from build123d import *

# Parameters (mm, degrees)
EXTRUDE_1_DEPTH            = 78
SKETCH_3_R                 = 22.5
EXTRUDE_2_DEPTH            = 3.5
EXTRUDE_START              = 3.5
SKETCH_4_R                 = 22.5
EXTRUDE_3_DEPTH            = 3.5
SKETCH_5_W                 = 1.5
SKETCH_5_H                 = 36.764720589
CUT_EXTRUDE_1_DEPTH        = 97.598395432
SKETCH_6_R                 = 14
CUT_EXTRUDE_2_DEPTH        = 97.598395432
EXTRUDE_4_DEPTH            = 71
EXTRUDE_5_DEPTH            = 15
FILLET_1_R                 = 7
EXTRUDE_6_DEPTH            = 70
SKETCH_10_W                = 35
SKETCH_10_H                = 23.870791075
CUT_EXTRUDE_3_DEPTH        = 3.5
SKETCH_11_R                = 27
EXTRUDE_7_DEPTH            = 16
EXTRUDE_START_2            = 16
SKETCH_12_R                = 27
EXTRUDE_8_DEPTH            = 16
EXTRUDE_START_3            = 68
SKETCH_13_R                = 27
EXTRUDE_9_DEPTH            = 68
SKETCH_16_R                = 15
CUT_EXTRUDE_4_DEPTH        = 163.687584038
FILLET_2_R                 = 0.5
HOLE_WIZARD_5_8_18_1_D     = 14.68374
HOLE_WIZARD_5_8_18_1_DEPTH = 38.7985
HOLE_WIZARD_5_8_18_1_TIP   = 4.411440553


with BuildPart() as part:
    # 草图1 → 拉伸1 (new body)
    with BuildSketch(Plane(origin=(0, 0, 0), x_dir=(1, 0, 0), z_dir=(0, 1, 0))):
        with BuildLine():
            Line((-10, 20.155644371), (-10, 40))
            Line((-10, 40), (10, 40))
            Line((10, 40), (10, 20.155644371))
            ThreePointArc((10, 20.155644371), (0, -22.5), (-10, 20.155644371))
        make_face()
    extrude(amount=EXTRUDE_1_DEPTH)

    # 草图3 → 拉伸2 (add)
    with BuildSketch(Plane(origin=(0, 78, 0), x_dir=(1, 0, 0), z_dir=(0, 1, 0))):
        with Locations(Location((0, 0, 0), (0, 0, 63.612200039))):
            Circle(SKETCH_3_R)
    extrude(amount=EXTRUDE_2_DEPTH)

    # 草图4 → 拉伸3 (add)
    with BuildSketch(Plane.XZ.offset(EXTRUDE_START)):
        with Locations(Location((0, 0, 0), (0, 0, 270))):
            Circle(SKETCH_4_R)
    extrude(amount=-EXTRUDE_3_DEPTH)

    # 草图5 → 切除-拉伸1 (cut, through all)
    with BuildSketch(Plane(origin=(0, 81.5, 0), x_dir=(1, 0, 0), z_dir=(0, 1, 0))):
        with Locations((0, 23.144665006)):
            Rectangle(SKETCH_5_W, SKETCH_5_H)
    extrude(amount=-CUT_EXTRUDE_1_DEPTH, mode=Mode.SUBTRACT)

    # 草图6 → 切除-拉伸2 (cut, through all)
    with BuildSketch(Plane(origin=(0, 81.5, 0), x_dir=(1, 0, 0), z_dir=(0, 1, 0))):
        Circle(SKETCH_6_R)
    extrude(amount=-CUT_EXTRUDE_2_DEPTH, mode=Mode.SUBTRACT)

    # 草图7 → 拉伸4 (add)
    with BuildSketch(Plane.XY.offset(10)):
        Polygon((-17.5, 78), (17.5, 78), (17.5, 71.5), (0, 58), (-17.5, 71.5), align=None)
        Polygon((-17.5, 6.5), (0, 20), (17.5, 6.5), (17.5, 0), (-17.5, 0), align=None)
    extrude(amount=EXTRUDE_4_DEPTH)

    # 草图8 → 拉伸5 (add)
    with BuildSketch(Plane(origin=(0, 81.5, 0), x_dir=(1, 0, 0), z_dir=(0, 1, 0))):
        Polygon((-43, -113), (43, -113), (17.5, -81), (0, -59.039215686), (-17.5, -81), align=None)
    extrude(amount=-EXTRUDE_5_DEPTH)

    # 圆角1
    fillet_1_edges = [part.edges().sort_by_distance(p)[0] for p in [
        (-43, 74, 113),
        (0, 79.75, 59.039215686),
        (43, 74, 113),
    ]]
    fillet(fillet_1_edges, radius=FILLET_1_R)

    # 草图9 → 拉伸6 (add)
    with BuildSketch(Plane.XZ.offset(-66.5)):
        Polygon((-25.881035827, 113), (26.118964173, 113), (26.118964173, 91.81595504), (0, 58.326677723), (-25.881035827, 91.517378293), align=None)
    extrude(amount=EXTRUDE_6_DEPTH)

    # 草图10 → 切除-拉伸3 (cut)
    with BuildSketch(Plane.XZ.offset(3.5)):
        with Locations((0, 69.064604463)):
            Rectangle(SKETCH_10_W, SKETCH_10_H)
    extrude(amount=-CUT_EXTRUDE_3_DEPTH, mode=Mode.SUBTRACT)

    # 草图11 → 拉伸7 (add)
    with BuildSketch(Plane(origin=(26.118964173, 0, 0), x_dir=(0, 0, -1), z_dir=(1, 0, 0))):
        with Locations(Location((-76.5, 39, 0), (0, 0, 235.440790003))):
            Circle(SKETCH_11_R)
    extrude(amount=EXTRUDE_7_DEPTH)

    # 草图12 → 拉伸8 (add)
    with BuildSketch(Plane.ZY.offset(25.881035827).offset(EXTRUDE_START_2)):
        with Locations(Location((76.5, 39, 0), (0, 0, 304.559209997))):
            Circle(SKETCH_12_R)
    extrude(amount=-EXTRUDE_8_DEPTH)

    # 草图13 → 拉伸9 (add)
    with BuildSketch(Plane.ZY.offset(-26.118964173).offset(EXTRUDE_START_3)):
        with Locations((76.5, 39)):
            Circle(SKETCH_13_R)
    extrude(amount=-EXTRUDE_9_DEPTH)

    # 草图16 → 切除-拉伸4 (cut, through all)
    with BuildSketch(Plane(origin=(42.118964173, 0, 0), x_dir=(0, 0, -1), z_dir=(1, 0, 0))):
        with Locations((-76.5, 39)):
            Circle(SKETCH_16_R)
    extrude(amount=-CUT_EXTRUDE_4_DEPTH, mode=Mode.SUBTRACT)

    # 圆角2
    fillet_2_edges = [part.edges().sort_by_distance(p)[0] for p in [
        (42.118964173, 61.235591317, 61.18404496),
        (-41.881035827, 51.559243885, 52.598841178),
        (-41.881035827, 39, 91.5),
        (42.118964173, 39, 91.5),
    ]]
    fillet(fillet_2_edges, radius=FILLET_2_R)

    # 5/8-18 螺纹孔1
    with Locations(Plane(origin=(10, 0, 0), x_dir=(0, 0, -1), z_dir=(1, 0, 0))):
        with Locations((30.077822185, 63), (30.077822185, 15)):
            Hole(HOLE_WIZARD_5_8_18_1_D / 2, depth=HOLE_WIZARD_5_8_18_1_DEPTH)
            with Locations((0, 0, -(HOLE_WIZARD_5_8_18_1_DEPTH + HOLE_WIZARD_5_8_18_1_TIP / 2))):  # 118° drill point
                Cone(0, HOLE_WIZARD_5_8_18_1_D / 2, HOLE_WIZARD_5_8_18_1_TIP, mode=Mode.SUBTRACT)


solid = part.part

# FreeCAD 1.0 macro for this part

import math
import FreeCAD as App
import Part
import Sketcher
from FreeCAD import Vector
Q = App.Units.Quantity


def edges_at(feature, points):
    """Names of the edges that pass closest to the given points."""
    edges = feature.Shape.Edges
    near = lambda p: min(range(len(edges)), key=lambda i: edges[i].distToShape(Part.Vertex(*p))[0])
    return sorted({f"Edge{near(p) + 1}" for p in points})

doc = App.newDocument("Part")
params = doc.addObject("Spreadsheet::Sheet", "Params")
for row, (alias, value) in enumerate([
    ("sketch1_radius", "22.5 mm"),
    ("sketch1_width", "20 mm"),
    ("pad1_length", "78 mm"),
    ("sketch2_diameter", "45 mm"),
    ("pad2_length", "3.5 mm"),
    ("sketch3_diameter", "45 mm"),
    ("pad3_length", "3.5 mm"),
    ("sketch4_width", "1.5 mm"),
    ("sketch5_diameter", "28 mm"),
    ("sketch6_width", "35 mm"),
    ("sketch6_height", "6.5 mm"),
    ("pad4_length", "71 mm"),
    ("sketch7_width", "86 mm"),
    ("pad5_length", "15 mm"),
    ("fillet_radius", "7 mm"),
    ("sketch8_width", "52 mm"),
    ("pad6_length", "70 mm"),
    ("sketch9_width", "35 mm"),
    ("pocket3_length", "3.5 mm"),
    ("sketch10_diameter", "54 mm"),
    ("pad7_length", "16 mm"),
    ("sketch11_diameter", "54 mm"),
    ("pad8_length", "16 mm"),
    ("sketch12_diameter", "54 mm"),
    ("pad9_length", "68 mm"),
    ("sketch13_diameter", "30 mm"),
    ("fillet2_radius", "0.5 mm"),
    ("hole_diameter", "14.68374 mm"),
    ("hole_depth", "38.7985 mm"),
], start=1):
    params.set(f"A{row}", alias)
    params.set(f"B{row}", "=" + value)
    params.setAlias(f"B{row}", alias)

body = doc.addObject("PartDesign::Body", "Body")

# Sketch on XZ plane
sketch1 = doc.addObject("Sketcher::SketchObject", "Sketch")
body.addObject(sketch1)
sketch1.AttachmentSupport = (doc.XZ_Plane, [""])
sketch1.MapMode = "FlatFace"
sketch1.addGeometry([
    Part.LineSegment(Vector(-10, -40, 0), Vector(-10, -20, 0)),
    Part.ArcOfCircle(Part.Circle(Vector(0, 0, 0), Vector(0, 0, 1), 22), math.radians(-64), math.radians(244)),
    Part.LineSegment(Vector(10, -20, 0), Vector(10, -40, 0)),
    Part.LineSegment(Vector(10, -40, 0), Vector(-10, -40, 0)),
], False)
sketch1.addConstraint([
    Sketcher.Constraint("Coincident", 0, 2, 1, 2),
    Sketcher.Constraint("Coincident", 1, 1, 2, 1),
    Sketcher.Constraint("Coincident", 2, 2, 3, 1),
    Sketcher.Constraint("Coincident", 3, 2, 0, 1),
    Sketcher.Constraint("Vertical", 0),
    Sketcher.Constraint("Vertical", 2),
    Sketcher.Constraint("Horizontal", 3),
    Sketcher.Constraint("Coincident", 1, 3, -1, 1),
    Sketcher.Constraint("Horizontal", 0, 2, 1, 1),
    Sketcher.Constraint("Radius", 1, Q("22.5 mm")),
    Sketcher.Constraint("DistanceX", 3, 2, 3, 1, Q("20 mm")),
    Sketcher.Constraint("DistanceY", 2, 2, -1, 1, Q("40 mm")),
])
sketch1.setExpression("Constraints[9]", "Params.sketch1_radius")
sketch1.setExpression("Constraints[10]", "Params.sketch1_width")
pad1 = doc.addObject("PartDesign::Pad", "Pad")
body.addObject(pad1)
pad1.Profile = sketch1
pad1.setExpression("Length", "Params.pad1_length")
pad1.Reversed = True

# Sketch on XZ plane
sketch2 = doc.addObject("Sketcher::SketchObject", "Sketch001")
body.addObject(sketch2)
sketch2.AttachmentSupport = (doc.XZ_Plane, [""])
sketch2.MapMode = "FlatFace"
sketch2.AttachmentOffset = App.Placement(Vector(0, 0, -78), App.Rotation())
sketch2.addGeometry(Part.Circle(Vector(0, 0, 0), Vector(0, 0, 1), 22), False)
sketch2.addConstraint([
    Sketcher.Constraint("Coincident", 0, 3, -1, 1),
    Sketcher.Constraint("Diameter", 0, Q("45 mm")),
])
sketch2.setExpression("Constraints[1]", "Params.sketch2_diameter")
pad2 = doc.addObject("PartDesign::Pad", "Pad001")
body.addObject(pad2)
pad2.Profile = sketch2
pad2.setExpression("Length", "Params.pad2_length")
pad2.Reversed = True

# Sketch on XZ plane
sketch3 = doc.addObject("Sketcher::SketchObject", "Sketch002")
body.addObject(sketch3)
sketch3.AttachmentSupport = (doc.XZ_Plane, [""])
sketch3.MapMode = "FlatFace"
sketch3.AttachmentOffset = App.Placement(Vector(0, 0, 3.5), App.Rotation())
sketch3.addGeometry(Part.Circle(Vector(0, 0, 0), Vector(0, 0, 1), 22), False)
sketch3.addConstraint([
    Sketcher.Constraint("Coincident", 0, 3, -1, 1),
    Sketcher.Constraint("Diameter", 0, Q("45 mm")),
])
sketch3.setExpression("Constraints[1]", "Params.sketch3_diameter")
pad3 = doc.addObject("PartDesign::Pad", "Pad002")
body.addObject(pad3)
pad3.Profile = sketch3
pad3.setExpression("Length", "Params.pad3_length")
pad3.Reversed = True

# Sketch on XZ plane
sketch4 = doc.addObject("Sketcher::SketchObject", "Sketch003")
body.addObject(sketch4)
sketch4.AttachmentSupport = (doc.XZ_Plane, [""])
sketch4.MapMode = "FlatFace"
sketch4.AttachmentOffset = App.Placement(Vector(0, 0, -81.5), App.Rotation())
sketch4.addGeometry([
    Part.LineSegment(Vector(-0.8, -41.5, 0), Vector(-0.8, -4.8, 0)),
    Part.LineSegment(Vector(-0.8, -4.8, 0), Vector(0.8, -4.8, 0)),
    Part.LineSegment(Vector(0.8, -4.8, 0), Vector(0.8, -41.5, 0)),
    Part.LineSegment(Vector(0.8, -41.5, 0), Vector(-0.8, -41.5, 0)),
], False)
sketch4.addConstraint([
    Sketcher.Constraint("Coincident", 0, 2, 1, 1),
    Sketcher.Constraint("Coincident", 1, 2, 2, 1),
    Sketcher.Constraint("Coincident", 2, 2, 3, 1),
    Sketcher.Constraint("Coincident", 3, 2, 0, 1),
    Sketcher.Constraint("Vertical", 0),
    Sketcher.Constraint("Horizontal", 1),
    Sketcher.Constraint("Vertical", 2),
    Sketcher.Constraint("Horizontal", 3),
    Sketcher.Constraint("DistanceX", 1, 1, 1, 2, Q("1.5 mm")),
    Sketcher.Constraint("DistanceX", 0, 2, -1, 1, Q("0.75 mm")),
    Sketcher.Constraint("DistanceY", 0, 1, 0, 2, Q("36.764721 mm")),
    Sketcher.Constraint("DistanceY", 0, 2, -1, 1, Q("4.762305 mm")),
])
sketch4.setExpression("Constraints[8]", "Params.sketch4_width")
pocket1 = doc.addObject("PartDesign::Pocket", "Pocket")
body.addObject(pocket1)
pocket1.Profile = sketch4
pocket1.Type = "ThroughAll"
pocket1.Reversed = True

# Sketch on XZ plane
sketch5 = doc.addObject("Sketcher::SketchObject", "Sketch004")
body.addObject(sketch5)
sketch5.AttachmentSupport = (doc.XZ_Plane, [""])
sketch5.MapMode = "FlatFace"
sketch5.AttachmentOffset = App.Placement(Vector(0, 0, -81.5), App.Rotation())
sketch5.addGeometry(Part.Circle(Vector(0, 0, 0), Vector(0, 0, 1), 14), False)
sketch5.addConstraint([
    Sketcher.Constraint("Coincident", 0, 3, -1, 1),
    Sketcher.Constraint("Diameter", 0, Q("28 mm")),
])
sketch5.setExpression("Constraints[1]", "Params.sketch5_diameter")
pocket2 = doc.addObject("PartDesign::Pocket", "Pocket001")
body.addObject(pocket2)
pocket2.Profile = sketch5
pocket2.Type = "ThroughAll"
pocket2.Reversed = True

# Sketch on XY plane
sketch6 = doc.addObject("Sketcher::SketchObject", "Sketch005")
body.addObject(sketch6)
sketch6.AttachmentSupport = (doc.XY_Plane, [""])
sketch6.MapMode = "FlatFace"
sketch6.AttachmentOffset = App.Placement(Vector(0, 0, 10), App.Rotation())
sketch6.addGeometry([
    Part.LineSegment(Vector(18, 78, 0), Vector(-18, 78, 0)),  # 0
    Part.LineSegment(Vector(-18, 78, 0), Vector(-18, 72, 0)),  # 1
    Part.LineSegment(Vector(-18, 72, 0), Vector(0, 58, 0)),  # 2
    Part.LineSegment(Vector(0, 58, 0), Vector(18, 72, 0)),  # 3
    Part.LineSegment(Vector(18, 72, 0), Vector(18, 78, 0)),  # 4
    Part.LineSegment(Vector(0, 20, 0), Vector(-18, 6, 0)),  # 5
    Part.LineSegment(Vector(-18, 6, 0), Vector(-18, 0, 0)),  # 6
    Part.LineSegment(Vector(-18, 0, 0), Vector(18, 0, 0)),  # 7
    Part.LineSegment(Vector(18, 0, 0), Vector(18, 6, 0)),  # 8
    Part.LineSegment(Vector(18, 6, 0), Vector(0, 20, 0)),  # 9
], False)
sketch6.addConstraint([
    Sketcher.Constraint("Coincident", 0, 2, 1, 1),
    Sketcher.Constraint("Coincident", 1, 2, 2, 1),
    Sketcher.Constraint("Coincident", 2, 2, 3, 1),
    Sketcher.Constraint("Coincident", 3, 2, 4, 1),
    Sketcher.Constraint("Coincident", 4, 2, 0, 1),
    Sketcher.Constraint("Coincident", 5, 2, 6, 1),
    Sketcher.Constraint("Coincident", 6, 2, 7, 1),
    Sketcher.Constraint("Coincident", 7, 2, 8, 1),
    Sketcher.Constraint("Coincident", 8, 2, 9, 1),
    Sketcher.Constraint("Coincident", 9, 2, 5, 1),
    Sketcher.Constraint("Horizontal", 0),
    Sketcher.Constraint("Vertical", 1),
    Sketcher.Constraint("Vertical", 4),
    Sketcher.Constraint("Vertical", 6),
    Sketcher.Constraint("Horizontal", 7),
    Sketcher.Constraint("Vertical", 8),
    Sketcher.Constraint("Symmetric", 6, 2, 7, 2, -1, 1),
    Sketcher.Constraint("Symmetric", 1, 2, 3, 2, -2),
    Sketcher.Constraint("PointOnObject", 2, 2, -2),
    Sketcher.Constraint("PointOnObject", 9, 2, -2),
    Sketcher.Constraint("Parallel", 3, 5),
    Sketcher.Constraint("Parallel", 2, 9),
    Sketcher.Constraint("Vertical", 1, 2, 5, 2),
    Sketcher.Constraint("Equal", 4, 6),
    Sketcher.Constraint("DistanceX", 0, 2, 0, 1, Q("35 mm")),
    Sketcher.Constraint("DistanceY", 1, 2, 1, 1, Q("6.5 mm")),
    Sketcher.Constraint("DistanceY", -1, 1, 0, 2, Q("78 mm")),
    Sketcher.Constraint("DistanceY", -1, 1, 2, 2, Q("58 mm")),
])
sketch6.setExpression("Constraints[24]", "Params.sketch6_width")
sketch6.setExpression("Constraints[25]", "Params.sketch6_height")
pad4 = doc.addObject("PartDesign::Pad", "Pad003")
body.addObject(pad4)
pad4.Profile = sketch6
pad4.setExpression("Length", "Params.pad4_length")

# Sketch on XZ plane
sketch7 = doc.addObject("Sketcher::SketchObject", "Sketch006")
body.addObject(sketch7)
sketch7.AttachmentSupport = (doc.XZ_Plane, [""])
sketch7.MapMode = "FlatFace"
sketch7.AttachmentOffset = App.Placement(Vector(0, 0, -81.5), App.Rotation())
sketch7.addGeometry([
    Part.LineSegment(Vector(-43, 113, 0), Vector(43, 113, 0)),  # 0
    Part.LineSegment(Vector(43, 113, 0), Vector(18, 81, 0)),  # 1
    Part.LineSegment(Vector(18, 81, 0), Vector(0, 59, 0)),  # 2
    Part.LineSegment(Vector(0, 59, 0), Vector(-18, 81, 0)),  # 3
    Part.LineSegment(Vector(-18, 81, 0), Vector(-43, 113, 0)),  # 4
], False)
sketch7.addConstraint([
    Sketcher.Constraint("Coincident", 0, 2, 1, 1),
    Sketcher.Constraint("Coincident", 1, 2, 2, 1),
    Sketcher.Constraint("Coincident", 2, 2, 3, 1),
    Sketcher.Constraint("Coincident", 3, 2, 4, 1),
    Sketcher.Constraint("Coincident", 4, 2, 0, 1),
    Sketcher.Constraint("Horizontal", 0),
    Sketcher.Constraint("Symmetric", 1, 2, 3, 2, -2),
    Sketcher.Constraint("PointOnObject", 2, 2, -2),
    Sketcher.Constraint("Parallel", 1, 2),
    Sketcher.Constraint("Parallel", 3, 4),
    Sketcher.Constraint("DistanceX", 0, 1, 0, 2, Q("86 mm")),
    Sketcher.Constraint("DistanceY", -1, 1, 0, 2, Q("113 mm")),
    Sketcher.Constraint("DistanceY", -1, 1, 1, 2, Q("81 mm")),
    Sketcher.Constraint("DistanceX", 3, 2, 1, 2, Q("35 mm")),
])
sketch7.setExpression("Constraints[10]", "Params.sketch7_width")
pad5 = doc.addObject("PartDesign::Pad", "Pad004")
body.addObject(pad5)
pad5.Profile = sketch7
pad5.setExpression("Length", "Params.pad5_length")
doc.recompute()

fillet = doc.addObject("PartDesign::Fillet", "Fillet")
body.addObject(fillet)
fillet.Base = (pad5, edges_at(pad5, [(-43, 74, 113), (0, 79.75, 59.039), (43, 74, 113)]))
fillet.setExpression("Radius", "Params.fillet_radius")

# Sketch on XZ plane
sketch8 = doc.addObject("Sketcher::SketchObject", "Sketch007")
body.addObject(sketch8)
sketch8.AttachmentSupport = (doc.XZ_Plane, [""])
sketch8.MapMode = "FlatFace"
sketch8.AttachmentOffset = App.Placement(Vector(0, 0, -66.5), App.Rotation())
sketch8.addGeometry([
    Part.LineSegment(Vector(26, 113, 0), Vector(-26, 113, 0)),  # 0
    Part.LineSegment(Vector(-26, 113, 0), Vector(-26, 92, 0)),  # 1
    Part.LineSegment(Vector(-26, 92, 0), Vector(0, 58, 0)),  # 2
    Part.LineSegment(Vector(0, 58, 0), Vector(26, 92, 0)),  # 3
    Part.LineSegment(Vector(26, 92, 0), Vector(26, 113, 0)),  # 4
], False)
sketch8.addConstraint([
    Sketcher.Constraint("Coincident", 0, 2, 1, 1),
    Sketcher.Constraint("Coincident", 1, 2, 2, 1),
    Sketcher.Constraint("Coincident", 2, 2, 3, 1),
    Sketcher.Constraint("Coincident", 3, 2, 4, 1),
    Sketcher.Constraint("Coincident", 4, 2, 0, 1),
    Sketcher.Constraint("Horizontal", 0),
    Sketcher.Constraint("Vertical", 1),
    Sketcher.Constraint("Vertical", 4),
    Sketcher.Constraint("PointOnObject", 2, 2, -2),
    Sketcher.Constraint("DistanceX", 0, 2, 0, 1, Q("52 mm")),
    Sketcher.Constraint("DistanceY", -1, 1, 0, 2, Q("113 mm")),
    Sketcher.Constraint("DistanceY", 1, 2, 1, 1, Q("21.482622 mm")),
    Sketcher.Constraint("DistanceY", 2, 2, 1, 2, Q("33.190701 mm")),
    Sketcher.Constraint("DistanceY", 4, 1, 4, 2, Q("21.184045 mm")),
    Sketcher.Constraint("Distance", 2, Q("42.088604 mm")),
])
sketch8.setExpression("Constraints[9]", "Params.sketch8_width")
pad6 = doc.addObject("PartDesign::Pad", "Pad005")
body.addObject(pad6)
pad6.Profile = sketch8
pad6.setExpression("Length", "Params.pad6_length")

# Sketch on XZ plane
sketch9 = doc.addObject("Sketcher::SketchObject", "Sketch008")
body.addObject(sketch9)
sketch9.AttachmentSupport = (doc.XZ_Plane, [""])
sketch9.MapMode = "FlatFace"
sketch9.AttachmentOffset = App.Placement(Vector(0, 0, 3.5), App.Rotation())
sketch9.addGeometry([
    Part.LineSegment(Vector(-18, 81, 0), Vector(-18, 57, 0)),
    Part.LineSegment(Vector(-18, 57, 0), Vector(18, 57, 0)),
    Part.LineSegment(Vector(18, 57, 0), Vector(18, 81, 0)),
    Part.LineSegment(Vector(18, 81, 0), Vector(-18, 81, 0)),
], False)
sketch9.addConstraint([
    Sketcher.Constraint("Coincident", 0, 2, 1, 1),
    Sketcher.Constraint("Coincident", 1, 2, 2, 1),
    Sketcher.Constraint("Coincident", 2, 2, 3, 1),
    Sketcher.Constraint("Coincident", 3, 2, 0, 1),
    Sketcher.Constraint("Vertical", 0),
    Sketcher.Constraint("Horizontal", 1),
    Sketcher.Constraint("Vertical", 2),
    Sketcher.Constraint("Horizontal", 3),
    Sketcher.Constraint("DistanceX", 1, 1, 1, 2, Q("35 mm")),
    Sketcher.Constraint("DistanceY", -1, 1, 2, 2, Q("81 mm")),
    Sketcher.Constraint("DistanceX", 0, 2, -1, 1, Q("17.5 mm")),
    Sketcher.Constraint("DistanceY", 0, 2, 0, 1, Q("23.870791 mm")),
])
sketch9.setExpression("Constraints[8]", "Params.sketch9_width")
pocket3 = doc.addObject("PartDesign::Pocket", "Pocket002")
body.addObject(pocket3)
pocket3.Profile = sketch9
pocket3.setExpression("Length", "Params.pocket3_length")

# Sketch on YZ plane
sketch10 = doc.addObject("Sketcher::SketchObject", "Sketch009")
body.addObject(sketch10)
sketch10.AttachmentSupport = (doc.YZ_Plane, [""])
sketch10.MapMode = "FlatFace"
sketch10.AttachmentOffset = App.Placement(Vector(0, 0, 26.118964), App.Rotation())
sketch10.addGeometry(Part.Circle(Vector(39, 76, 0), Vector(0, 0, 1), 27), False)
sketch10.addConstraint([
    Sketcher.Constraint("Diameter", 0, Q("54 mm")),
    Sketcher.Constraint("DistanceX", -1, 1, 0, 3, Q("39 mm")),
    Sketcher.Constraint("DistanceY", -1, 1, 0, 3, Q("76.5 mm")),
])
sketch10.setExpression("Constraints[0]", "Params.sketch10_diameter")
pad7 = doc.addObject("PartDesign::Pad", "Pad006")
body.addObject(pad7)
pad7.Profile = sketch10
pad7.setExpression("Length", "Params.pad7_length")

# Sketch on YZ plane
sketch11 = doc.addObject("Sketcher::SketchObject", "Sketch010")
body.addObject(sketch11)
sketch11.AttachmentSupport = (doc.YZ_Plane, [""])
sketch11.MapMode = "FlatFace"
sketch11.AttachmentOffset = App.Placement(Vector(0, 0, -41.881036), App.Rotation())
sketch11.addGeometry(Part.Circle(Vector(39, 76, 0), Vector(0, 0, 1), 27), False)
sketch11.addConstraint([
    Sketcher.Constraint("Diameter", 0, Q("54 mm")),
    Sketcher.Constraint("DistanceX", -1, 1, 0, 3, Q("39 mm")),
    Sketcher.Constraint("DistanceY", -1, 1, 0, 3, Q("76.5 mm")),
])
sketch11.setExpression("Constraints[0]", "Params.sketch11_diameter")
pad8 = doc.addObject("PartDesign::Pad", "Pad007")
body.addObject(pad8)
pad8.Profile = sketch11
pad8.setExpression("Length", "Params.pad8_length")

# Sketch on YZ plane
sketch12 = doc.addObject("Sketcher::SketchObject", "Sketch011")
body.addObject(sketch12)
sketch12.AttachmentSupport = (doc.YZ_Plane, [""])
sketch12.MapMode = "FlatFace"
sketch12.AttachmentOffset = App.Placement(Vector(0, 0, -41.881036), App.Rotation())
sketch12.addGeometry(Part.Circle(Vector(39, 76, 0), Vector(0, 0, 1), 27), False)
sketch12.addConstraint([
    Sketcher.Constraint("Diameter", 0, Q("54 mm")),
    Sketcher.Constraint("DistanceX", -1, 1, 0, 3, Q("39 mm")),
    Sketcher.Constraint("DistanceY", -1, 1, 0, 3, Q("76.5 mm")),
])
sketch12.setExpression("Constraints[0]", "Params.sketch12_diameter")
pad9 = doc.addObject("PartDesign::Pad", "Pad008")
body.addObject(pad9)
pad9.Profile = sketch12
pad9.setExpression("Length", "Params.pad9_length")

# Sketch on YZ plane
sketch13 = doc.addObject("Sketcher::SketchObject", "Sketch012")
body.addObject(sketch13)
sketch13.AttachmentSupport = (doc.YZ_Plane, [""])
sketch13.MapMode = "FlatFace"
sketch13.AttachmentOffset = App.Placement(Vector(0, 0, 42.118964), App.Rotation())
sketch13.addGeometry(Part.Circle(Vector(39, 76, 0), Vector(0, 0, 1), 15), False)
sketch13.addConstraint([
    Sketcher.Constraint("Diameter", 0, Q("30 mm")),
    Sketcher.Constraint("DistanceX", -1, 1, 0, 3, Q("39 mm")),
    Sketcher.Constraint("DistanceY", -1, 1, 0, 3, Q("76.5 mm")),
])
sketch13.setExpression("Constraints[0]", "Params.sketch13_diameter")
pocket4 = doc.addObject("PartDesign::Pocket", "Pocket003")
body.addObject(pocket4)
pocket4.Profile = sketch13
pocket4.Type = "ThroughAll"
doc.recompute()

fillet2 = doc.addObject("PartDesign::Fillet", "Fillet001")
body.addObject(fillet2)
fillet2.Base = (pocket4, edges_at(pocket4, [
    (42.119, 61.236, 61.184),
    (-41.881, 51.559, 52.599),
    (-41.881, 39, 91.5),
    (42.119, 39, 91.5),
]))
fillet2.setExpression("Radius", "Params.fillet2_radius")

# Sketch on YZ plane
sketch14 = doc.addObject("Sketcher::SketchObject", "Sketch013")
body.addObject(sketch14)
sketch14.AttachmentSupport = (doc.YZ_Plane, [""])
sketch14.MapMode = "FlatFace"
sketch14.AttachmentOffset = App.Placement(Vector(0, 0, 10), App.Rotation())
sketch14.addGeometry([
    Part.Circle(Vector(63, -30, 0), Vector(0, 0, 1), 7),
    Part.Circle(Vector(15, -30, 0), Vector(0, 0, 1), 7),
], False)
sketch14.addConstraint([
    Sketcher.Constraint("Equal", 0, 1),
    Sketcher.Constraint("Horizontal", 0, 3, 1, 3),
    Sketcher.Constraint("DistanceX", -1, 1, 0, 3, Q("63 mm")),
    Sketcher.Constraint("DistanceX", -1, 1, 1, 3, Q("15 mm")),
    Sketcher.Constraint("Diameter", 0, Q("14.68374 mm")),
    Sketcher.Constraint("DistanceY", 0, 3, -1, 1, Q("30.077822 mm")),
])
doc.recompute()
hole = doc.addObject("PartDesign::Hole", "Hole")
body.addObject(hole)
hole.Profile = sketch14
hole.ThreadType = "None"
hole.setExpression("Diameter", "Params.hole_diameter")
hole.DepthType = "Dimension"
hole.setExpression("Depth", "Params.hole_depth")
hole.DrillPoint = "Angled"
hole.DrillPointAngle = 118

doc.recompute()
